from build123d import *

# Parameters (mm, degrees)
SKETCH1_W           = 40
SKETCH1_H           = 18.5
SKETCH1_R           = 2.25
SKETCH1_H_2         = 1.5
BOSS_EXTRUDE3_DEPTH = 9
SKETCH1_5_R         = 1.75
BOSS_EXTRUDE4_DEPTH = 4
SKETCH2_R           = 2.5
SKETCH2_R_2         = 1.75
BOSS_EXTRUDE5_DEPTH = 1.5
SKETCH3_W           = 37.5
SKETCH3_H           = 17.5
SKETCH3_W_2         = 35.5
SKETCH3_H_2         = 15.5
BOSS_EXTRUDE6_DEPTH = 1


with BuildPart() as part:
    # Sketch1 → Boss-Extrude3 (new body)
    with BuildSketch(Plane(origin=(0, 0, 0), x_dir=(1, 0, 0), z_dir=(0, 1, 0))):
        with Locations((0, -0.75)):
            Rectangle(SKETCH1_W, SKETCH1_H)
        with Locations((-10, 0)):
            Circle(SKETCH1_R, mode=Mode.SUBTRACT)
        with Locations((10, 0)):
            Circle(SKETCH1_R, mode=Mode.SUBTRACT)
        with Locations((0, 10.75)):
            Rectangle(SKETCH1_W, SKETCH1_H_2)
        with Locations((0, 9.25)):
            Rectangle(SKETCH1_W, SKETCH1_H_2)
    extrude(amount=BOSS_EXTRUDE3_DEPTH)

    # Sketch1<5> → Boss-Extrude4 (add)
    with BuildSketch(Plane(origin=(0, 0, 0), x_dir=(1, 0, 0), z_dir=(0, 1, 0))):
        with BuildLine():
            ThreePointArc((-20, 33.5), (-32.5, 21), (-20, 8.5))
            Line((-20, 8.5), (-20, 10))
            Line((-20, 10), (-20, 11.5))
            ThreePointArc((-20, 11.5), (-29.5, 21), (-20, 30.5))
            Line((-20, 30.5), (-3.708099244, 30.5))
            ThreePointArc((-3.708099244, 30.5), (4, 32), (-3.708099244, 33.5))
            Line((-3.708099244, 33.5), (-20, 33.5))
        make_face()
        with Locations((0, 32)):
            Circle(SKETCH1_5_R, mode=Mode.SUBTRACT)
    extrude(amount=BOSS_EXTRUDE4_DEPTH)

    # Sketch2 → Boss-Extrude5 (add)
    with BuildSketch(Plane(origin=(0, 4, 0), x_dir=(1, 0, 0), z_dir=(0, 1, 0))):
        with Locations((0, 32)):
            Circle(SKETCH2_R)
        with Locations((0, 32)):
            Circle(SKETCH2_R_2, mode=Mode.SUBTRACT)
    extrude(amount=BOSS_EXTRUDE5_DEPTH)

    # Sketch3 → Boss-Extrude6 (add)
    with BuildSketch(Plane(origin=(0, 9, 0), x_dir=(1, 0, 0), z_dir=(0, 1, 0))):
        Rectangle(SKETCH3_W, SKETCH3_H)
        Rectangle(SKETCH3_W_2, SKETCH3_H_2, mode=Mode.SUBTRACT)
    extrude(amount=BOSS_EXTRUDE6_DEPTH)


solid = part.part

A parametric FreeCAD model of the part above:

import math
import FreeCAD as App
import Part
import Sketcher

doc = App.newDocument("Part")
body = doc.addObject("PartDesign::Body", "Body")

# Sketch on XZ plane
sketch1 = body.newObject("Sketcher::SketchObject", "Sketch")
sketch1.AttachmentSupport = (doc.getObject("XZ_Plane"), [""])
sketch1.MapMode = "FlatFace"
sketch1.addGeometry(Part.LineSegment(App.Vector(-20, 10, 0), App.Vector(20, 10, 0)), False)
sketch1.addGeometry(Part.LineSegment(App.Vector(20, 10, 0), App.Vector(20, -11.5, 0)), False)
sketch1.addGeometry(Part.LineSegment(App.Vector(20, -11.5, 0), App.Vector(-20, -11.5, 0)), False)
sketch1.addGeometry(Part.LineSegment(App.Vector(-20, -11.5, 0), App.Vector(-20, 10, 0)), False)
sketch1.addGeometry(Part.Circle(App.Vector(-10, 0, 0), App.Vector(0, 0, 1), 2.2), False)
sketch1.addGeometry(Part.Circle(App.Vector(10, 0, 0), App.Vector(0, 0, 1), 2.2), False)
sketch1.addConstraint(Sketcher.Constraint("Coincident", 0, 2, 1, 1))
sketch1.addConstraint(Sketcher.Constraint("Coincident", 1, 2, 2, 1))
sketch1.addConstraint(Sketcher.Constraint("Coincident", 2, 2, 3, 1))
sketch1.addConstraint(Sketcher.Constraint("Coincident", 3, 2, 0, 1))
sketch1.addConstraint(Sketcher.Constraint("Horizontal", 0))
sketch1.addConstraint(Sketcher.Constraint("Vertical", 1))
sketch1.addConstraint(Sketcher.Constraint("Horizontal", 2))
sketch1.addConstraint(Sketcher.Constraint("Vertical", 3))
sketch1.addConstraint(Sketcher.Constraint("Equal", 4, 5))
sketch1.addConstraint(Sketcher.Constraint("Symmetric", 4, 3, 5, 3, -1, 1))
sketch1.addConstraint(Sketcher.Constraint("PointOnObject", 4, 3, -1))
sketch1.addConstraint(Sketcher.Constraint("Diameter", 4, 4.5))
sketch1.addConstraint(Sketcher.Constraint("DistanceX", 0, 1, 0, 2, 40.0))
sketch1.addConstraint(Sketcher.Constraint("DistanceY", 1, 2, 1, 1, 21.5))
sketch1.addConstraint(Sketcher.Constraint("DistanceX", 4, 3, -1, 1, 10.0))
sketch1.addConstraint(Sketcher.Constraint("DistanceX", -1, 1, 0, 2, 20.0))
sketch1.addConstraint(Sketcher.Constraint("DistanceY", -1, 1, 0, 2, 10.0))
pad1 = body.newObject("PartDesign::Pad", "Pad")
pad1.Profile = sketch1
pad1.Length = 9
pad1.Reversed = True

# Sketch on XZ plane
sketch2 = body.newObject("Sketcher::SketchObject", "Sketch001")
sketch2.AttachmentSupport = (doc.getObject("XZ_Plane"), [""])
sketch2.MapMode = "FlatFace"
sketch2.addGeometry(Part.ArcOfCircle(Part.Circle(App.Vector(-20, -21, 0), App.Vector(0, 0, 1), 12.5), math.radians(90), math.radians(270)), False)
sketch2.addGeometry(Part.LineSegment(App.Vector(-20, -8.5, 0), App.Vector(-20, -11.5, 0)), False)
sketch2.addGeometry(Part.ArcOfCircle(Part.Circle(App.Vector(-20, -21, 0), App.Vector(0, 0, 1), 9.5), math.radians(90), math.radians(270)), False)
sketch2.addGeometry(Part.LineSegment(App.Vector(-20, -30.5, 0), App.Vector(-3.7, -30.5, 0)), False)
sketch2.addGeometry(Part.ArcOfCircle(Part.Circle(App.Vector(0, -32, 0), App.Vector(0, 0, 1), 4), math.radians(-158), math.radians(158)), False)
sketch2.addGeometry(Part.LineSegment(App.Vector(-3.7, -33.5, 0), App.Vector(-20, -33.5, 0)), False)
sketch2.addGeometry(Part.Circle(App.Vector(0, -32, 0), App.Vector(0, 0, 1), 1.8), False)
sketch2.addConstraint(Sketcher.Constraint("Coincident", 0, 1, 1, 1))
sketch2.addConstraint(Sketcher.Constraint("Coincident", 1, 2, 2, 1))
sketch2.addConstraint(Sketcher.Constraint("Tangent", 2, 2, 3, 1))
sketch2.addConstraint(Sketcher.Constraint("Coincident", 3, 2, 4, 2))
sketch2.addConstraint(Sketcher.Constraint("Coincident", 4, 1, 5, 1))
sketch2.addConstraint(Sketcher.Constraint("Tangent", 5, 2, 0, 2))
sketch2.addConstraint(Sketcher.Constraint("Vertical", 1))
sketch2.addConstraint(Sketcher.Constraint("Horizontal", 3))
sketch2.addConstraint(Sketcher.Constraint("Horizontal", 5))
sketch2.addConstraint(Sketcher.Constraint("Coincident", 2, 3, 0, 3))
sketch2.addConstraint(Sketcher.Constraint("Coincident", 6, 3, 4, 3))
sketch2.addConstraint(Sketcher.Constraint("PointOnObject", 4, 3, -2))
sketch2.addConstraint(Sketcher.Constraint("Vertical", 2, 3, 0, 1))
sketch2.addConstraint(Sketcher.Constraint("Vertical", 3, 2, 4, 1))
sketch2.addConstraint(Sketcher.Constraint("Radius", 4, 4.0))
sketch2.addConstraint(Sketcher.Constraint("Diameter", 6, 3.5))
sketch2.addConstraint(Sketcher.Constraint("Radius", 0, 12.5))
sketch2.addConstraint(Sketcher.Constraint("Radius", 2, 9.5))
sketch2.addConstraint(Sketcher.Constraint("DistanceX", 0, 3, -1, 1, 20.0))
sketch2.addConstraint(Sketcher.Constraint("DistanceY", 0, 3, -1, 1, 21.0))
pad2 = body.newObject("PartDesign::Pad", "Pad001")
pad2.Profile = sketch2
pad2.Length = 4
pad2.Reversed = True

# Sketch on XZ plane
sketch3 = body.newObject("Sketcher::SketchObject", "Sketch002")
sketch3.AttachmentSupport = (doc.getObject("XZ_Plane"), [""])
sketch3.MapMode = "FlatFace"
sketch3.AttachmentOffset = App.Placement(App.Vector(0, 0, -4), App.Rotation())
sketch3.addGeometry(Part.Circle(App.Vector(0, -32, 0), App.Vector(0, 0, 1), 2.5), False)
sketch3.addGeometry(Part.Circle(App.Vector(0, -32, 0), App.Vector(0, 0, 1), 1.8), False)
sketch3.addConstraint(Sketcher.Constraint("Coincident", 1, 3, 0, 3))
sketch3.addConstraint(Sketcher.Constraint("PointOnObject", 0, 3, -2))
sketch3.addConstraint(Sketcher.Constraint("Diameter", 0, 5.0))
sketch3.addConstraint(Sketcher.Constraint("Diameter", 1, 3.5))
sketch3.addConstraint(Sketcher.Constraint("DistanceY", 0, 3, -1, 1, 32.0))
pad3 = body.newObject("PartDesign::Pad", "Pad002")
pad3.Profile = sketch3
pad3.Length = 1.5
pad3.Reversed = True

# Sketch on XZ plane
sketch4 = body.newObject("Sketcher::SketchObject", "Sketch003")
sketch4.AttachmentSupport = (doc.getObject("XZ_Plane"), [""])
sketch4.MapMode = "FlatFace"
sketch4.AttachmentOffset = App.Placement(App.Vector(0, 0, -9), App.Rotation())
sketch4.addGeometry(Part.LineSegment(App.Vector(-19, -9, 0), App.Vector(-19, 9, 0)), False)
sketch4.addGeometry(Part.LineSegment(App.Vector(-19, 9, 0), App.Vector(19, 9, 0)), False)
sketch4.addGeometry(Part.LineSegment(App.Vector(19, 9, 0), App.Vector(19, -9, 0)), False)
sketch4.addGeometry(Part.LineSegment(App.Vector(19, -9, 0), App.Vector(-19, -9, 0)), False)
sketch4.addGeometry(Part.LineSegment(App.Vector(18, 8, 0), App.Vector(-18, 8, 0)), False)
sketch4.addGeometry(Part.LineSegment(App.Vector(-18, 8, 0), App.Vector(-18, -8, 0)), False)
sketch4.addGeometry(Part.LineSegment(App.Vector(-18, -8, 0), App.Vector(18, -8, 0)), False)
sketch4.addGeometry(Part.LineSegment(App.Vector(18, -8, 0), App.Vector(18, 8, 0)), False)
sketch4.addConstraint(Sketcher.Constraint("Coincident", 0, 2, 1, 1))
sketch4.addConstraint(Sketcher.Constraint("Coincident", 1, 2, 2, 1))
sketch4.addConstraint(Sketcher.Constraint("Coincident", 2, 2, 3, 1))
sketch4.addConstraint(Sketcher.Constraint("Coincident", 3, 2, 0, 1))
sketch4.addConstraint(Sketcher.Constraint("Coincident", 4, 2, 5, 1))
sketch4.addConstraint(Sketcher.Constraint("Coincident", 5, 2, 6, 1))
sketch4.addConstraint(Sketcher.Constraint("Coincident", 6, 2, 7, 1))
sketch4.addConstraint(Sketcher.Constraint("Coincident", 7, 2, 4, 1))
sketch4.addConstraint(Sketcher.Constraint("Vertical", 0))
sketch4.addConstraint(Sketcher.Constraint("Horizontal", 1))
sketch4.addConstraint(Sketcher.Constraint("Vertical", 2))
sketch4.addConstraint(Sketcher.Constraint("Horizontal", 3))
sketch4.addConstraint(Sketcher.Constraint("Horizontal", 4))
sketch4.addConstraint(Sketcher.Constraint("Vertical", 5))
sketch4.addConstraint(Sketcher.Constraint("Horizontal", 6))
sketch4.addConstraint(Sketcher.Constraint("Vertical", 7))
sketch4.addConstraint(Sketcher.Constraint("Symmetric", 0, 2, 2, 2, -1, 1))
sketch4.addConstraint(Sketcher.Constraint("Symmetric", 4, 2, 6, 2, -1, 1))
sketch4.addConstraint(Sketcher.Constraint("DistanceX", 1, 1, 1, 2, 37.5))
sketch4.addConstraint(Sketcher.Constraint("DistanceX", 4, 2, 4, 1, 35.5))
sketch4.addConstraint(Sketcher.Constraint("DistanceY", 0, 1, 0, 2, 17.5))
sketch4.addConstraint(Sketcher.Constraint("DistanceY", 5, 2, 5, 1, 15.5))
pad4 = body.newObject("PartDesign::Pad", "Pad003")
pad4.Profile = sketch4
pad4.Length = 1
pad4.Reversed = True

doc.recompute()
